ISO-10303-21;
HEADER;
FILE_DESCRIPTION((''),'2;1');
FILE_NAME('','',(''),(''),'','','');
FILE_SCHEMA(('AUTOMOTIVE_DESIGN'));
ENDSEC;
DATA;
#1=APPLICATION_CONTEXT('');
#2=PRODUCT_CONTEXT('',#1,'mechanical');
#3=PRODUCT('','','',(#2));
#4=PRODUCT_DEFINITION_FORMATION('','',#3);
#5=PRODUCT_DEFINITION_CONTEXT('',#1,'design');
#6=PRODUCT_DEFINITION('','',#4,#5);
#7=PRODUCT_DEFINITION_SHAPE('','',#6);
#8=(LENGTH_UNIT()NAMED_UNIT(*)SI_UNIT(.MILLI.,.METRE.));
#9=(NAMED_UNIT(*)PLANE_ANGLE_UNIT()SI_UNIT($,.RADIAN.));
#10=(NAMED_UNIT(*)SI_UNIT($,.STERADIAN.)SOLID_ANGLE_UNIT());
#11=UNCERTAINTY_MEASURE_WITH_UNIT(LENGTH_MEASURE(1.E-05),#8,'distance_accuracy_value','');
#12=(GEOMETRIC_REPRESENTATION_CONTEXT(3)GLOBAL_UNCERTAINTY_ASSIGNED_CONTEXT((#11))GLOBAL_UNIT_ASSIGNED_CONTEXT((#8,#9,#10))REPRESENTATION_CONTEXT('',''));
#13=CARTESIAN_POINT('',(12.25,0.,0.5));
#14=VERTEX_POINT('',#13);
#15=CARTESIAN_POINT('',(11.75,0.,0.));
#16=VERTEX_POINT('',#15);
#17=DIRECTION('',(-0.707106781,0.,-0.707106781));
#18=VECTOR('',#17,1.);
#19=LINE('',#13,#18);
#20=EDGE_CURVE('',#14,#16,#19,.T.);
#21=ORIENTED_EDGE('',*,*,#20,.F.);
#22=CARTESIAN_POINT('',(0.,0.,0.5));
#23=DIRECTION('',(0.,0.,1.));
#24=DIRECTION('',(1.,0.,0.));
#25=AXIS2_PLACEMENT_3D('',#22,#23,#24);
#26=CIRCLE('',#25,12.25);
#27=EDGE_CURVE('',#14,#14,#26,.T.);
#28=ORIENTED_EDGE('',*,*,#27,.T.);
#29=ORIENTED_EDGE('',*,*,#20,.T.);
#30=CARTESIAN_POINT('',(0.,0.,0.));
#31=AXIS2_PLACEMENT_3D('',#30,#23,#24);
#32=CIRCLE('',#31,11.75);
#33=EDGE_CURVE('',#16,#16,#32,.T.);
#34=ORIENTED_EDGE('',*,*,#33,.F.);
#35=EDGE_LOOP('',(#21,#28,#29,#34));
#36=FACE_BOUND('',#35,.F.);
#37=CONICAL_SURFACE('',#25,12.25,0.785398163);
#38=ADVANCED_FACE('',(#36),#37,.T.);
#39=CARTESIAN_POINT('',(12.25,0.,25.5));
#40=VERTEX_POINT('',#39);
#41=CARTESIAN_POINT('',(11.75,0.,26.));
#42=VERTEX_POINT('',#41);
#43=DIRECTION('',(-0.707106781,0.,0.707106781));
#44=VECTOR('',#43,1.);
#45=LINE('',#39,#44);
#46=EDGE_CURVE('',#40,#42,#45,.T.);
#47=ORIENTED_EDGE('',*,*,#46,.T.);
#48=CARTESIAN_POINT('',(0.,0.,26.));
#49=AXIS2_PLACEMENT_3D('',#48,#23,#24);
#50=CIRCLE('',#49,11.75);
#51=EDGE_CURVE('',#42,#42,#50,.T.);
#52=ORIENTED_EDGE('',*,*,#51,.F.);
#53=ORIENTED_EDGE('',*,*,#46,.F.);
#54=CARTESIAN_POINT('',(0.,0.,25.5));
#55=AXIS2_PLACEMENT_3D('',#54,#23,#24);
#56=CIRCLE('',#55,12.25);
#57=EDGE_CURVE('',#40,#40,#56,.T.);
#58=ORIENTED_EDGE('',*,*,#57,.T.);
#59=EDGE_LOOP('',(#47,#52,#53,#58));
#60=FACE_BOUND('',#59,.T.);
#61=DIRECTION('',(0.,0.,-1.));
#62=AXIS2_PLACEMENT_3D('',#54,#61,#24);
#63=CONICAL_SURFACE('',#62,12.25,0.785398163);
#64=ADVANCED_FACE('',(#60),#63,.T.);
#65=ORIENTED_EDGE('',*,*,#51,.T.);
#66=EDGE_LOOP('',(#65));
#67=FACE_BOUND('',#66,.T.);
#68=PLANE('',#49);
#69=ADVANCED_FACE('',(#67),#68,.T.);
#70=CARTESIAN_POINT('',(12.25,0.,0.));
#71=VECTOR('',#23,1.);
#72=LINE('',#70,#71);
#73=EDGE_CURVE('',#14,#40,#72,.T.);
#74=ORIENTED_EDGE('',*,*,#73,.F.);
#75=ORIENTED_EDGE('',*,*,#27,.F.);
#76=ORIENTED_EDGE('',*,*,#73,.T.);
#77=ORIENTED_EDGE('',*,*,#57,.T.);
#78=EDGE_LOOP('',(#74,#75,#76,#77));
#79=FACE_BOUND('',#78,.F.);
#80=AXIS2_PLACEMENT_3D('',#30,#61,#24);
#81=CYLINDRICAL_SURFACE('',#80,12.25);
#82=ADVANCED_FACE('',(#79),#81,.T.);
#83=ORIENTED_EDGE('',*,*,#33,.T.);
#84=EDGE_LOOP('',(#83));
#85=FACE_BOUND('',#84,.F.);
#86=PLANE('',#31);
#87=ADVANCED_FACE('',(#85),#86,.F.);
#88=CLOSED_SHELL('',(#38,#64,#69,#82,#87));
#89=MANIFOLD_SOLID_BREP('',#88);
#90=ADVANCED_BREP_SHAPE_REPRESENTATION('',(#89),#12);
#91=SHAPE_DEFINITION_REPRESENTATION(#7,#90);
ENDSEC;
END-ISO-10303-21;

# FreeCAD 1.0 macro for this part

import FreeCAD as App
import Part
import Sketcher


def edges_at(feature, points):
    """Names of the edges that pass closest to the given points."""
    edges = feature.Shape.Edges
    near = lambda p: min(range(len(edges)), key=lambda i: edges[i].distToShape(Part.Vertex(*p))[0])
    return sorted({f"Edge{near(p) + 1}" for p in points})

doc = App.newDocument("Part")
body = doc.addObject("PartDesign::Body", "Body")

# Sketch on XY plane
sketch1 = doc.addObject("Sketcher::SketchObject", "Sketch")
body.addObject(sketch1)
sketch1.AttachmentSupport = (doc.XY_Plane, [""])
sketch1.MapMode = "FlatFace"
sketch1.addGeometry(Part.Circle(App.Vector(0, 0, 0), App.Vector(0, 0, 1), 12), False)
sketch1.addConstraint(Sketcher.Constraint("Coincident", 0, 3, -1, 1))
sketch1.addConstraint(Sketcher.Constraint("Diameter", 0, 24.5))
pad1 = doc.addObject("PartDesign::Pad", "Pad")
body.addObject(pad1)
pad1.Profile = sketch1
pad1.Length = 26
doc.recompute()

chamfer = doc.addObject("PartDesign::Chamfer", "Chamfer")
body.addObject(chamfer)
chamfer.Base = (pad1, edges_at(pad1, [(-12.25, 0, 0)]))
chamfer.Size = 0.5
doc.recompute()

chamfer2 = doc.addObject("PartDesign::Chamfer", "Chamfer001")
body.addObject(chamfer2)
chamfer2.Base = (chamfer, edges_at(chamfer, [(-12.25, 0, 26)]))
chamfer2.Size = 0.5

doc.recompute()
